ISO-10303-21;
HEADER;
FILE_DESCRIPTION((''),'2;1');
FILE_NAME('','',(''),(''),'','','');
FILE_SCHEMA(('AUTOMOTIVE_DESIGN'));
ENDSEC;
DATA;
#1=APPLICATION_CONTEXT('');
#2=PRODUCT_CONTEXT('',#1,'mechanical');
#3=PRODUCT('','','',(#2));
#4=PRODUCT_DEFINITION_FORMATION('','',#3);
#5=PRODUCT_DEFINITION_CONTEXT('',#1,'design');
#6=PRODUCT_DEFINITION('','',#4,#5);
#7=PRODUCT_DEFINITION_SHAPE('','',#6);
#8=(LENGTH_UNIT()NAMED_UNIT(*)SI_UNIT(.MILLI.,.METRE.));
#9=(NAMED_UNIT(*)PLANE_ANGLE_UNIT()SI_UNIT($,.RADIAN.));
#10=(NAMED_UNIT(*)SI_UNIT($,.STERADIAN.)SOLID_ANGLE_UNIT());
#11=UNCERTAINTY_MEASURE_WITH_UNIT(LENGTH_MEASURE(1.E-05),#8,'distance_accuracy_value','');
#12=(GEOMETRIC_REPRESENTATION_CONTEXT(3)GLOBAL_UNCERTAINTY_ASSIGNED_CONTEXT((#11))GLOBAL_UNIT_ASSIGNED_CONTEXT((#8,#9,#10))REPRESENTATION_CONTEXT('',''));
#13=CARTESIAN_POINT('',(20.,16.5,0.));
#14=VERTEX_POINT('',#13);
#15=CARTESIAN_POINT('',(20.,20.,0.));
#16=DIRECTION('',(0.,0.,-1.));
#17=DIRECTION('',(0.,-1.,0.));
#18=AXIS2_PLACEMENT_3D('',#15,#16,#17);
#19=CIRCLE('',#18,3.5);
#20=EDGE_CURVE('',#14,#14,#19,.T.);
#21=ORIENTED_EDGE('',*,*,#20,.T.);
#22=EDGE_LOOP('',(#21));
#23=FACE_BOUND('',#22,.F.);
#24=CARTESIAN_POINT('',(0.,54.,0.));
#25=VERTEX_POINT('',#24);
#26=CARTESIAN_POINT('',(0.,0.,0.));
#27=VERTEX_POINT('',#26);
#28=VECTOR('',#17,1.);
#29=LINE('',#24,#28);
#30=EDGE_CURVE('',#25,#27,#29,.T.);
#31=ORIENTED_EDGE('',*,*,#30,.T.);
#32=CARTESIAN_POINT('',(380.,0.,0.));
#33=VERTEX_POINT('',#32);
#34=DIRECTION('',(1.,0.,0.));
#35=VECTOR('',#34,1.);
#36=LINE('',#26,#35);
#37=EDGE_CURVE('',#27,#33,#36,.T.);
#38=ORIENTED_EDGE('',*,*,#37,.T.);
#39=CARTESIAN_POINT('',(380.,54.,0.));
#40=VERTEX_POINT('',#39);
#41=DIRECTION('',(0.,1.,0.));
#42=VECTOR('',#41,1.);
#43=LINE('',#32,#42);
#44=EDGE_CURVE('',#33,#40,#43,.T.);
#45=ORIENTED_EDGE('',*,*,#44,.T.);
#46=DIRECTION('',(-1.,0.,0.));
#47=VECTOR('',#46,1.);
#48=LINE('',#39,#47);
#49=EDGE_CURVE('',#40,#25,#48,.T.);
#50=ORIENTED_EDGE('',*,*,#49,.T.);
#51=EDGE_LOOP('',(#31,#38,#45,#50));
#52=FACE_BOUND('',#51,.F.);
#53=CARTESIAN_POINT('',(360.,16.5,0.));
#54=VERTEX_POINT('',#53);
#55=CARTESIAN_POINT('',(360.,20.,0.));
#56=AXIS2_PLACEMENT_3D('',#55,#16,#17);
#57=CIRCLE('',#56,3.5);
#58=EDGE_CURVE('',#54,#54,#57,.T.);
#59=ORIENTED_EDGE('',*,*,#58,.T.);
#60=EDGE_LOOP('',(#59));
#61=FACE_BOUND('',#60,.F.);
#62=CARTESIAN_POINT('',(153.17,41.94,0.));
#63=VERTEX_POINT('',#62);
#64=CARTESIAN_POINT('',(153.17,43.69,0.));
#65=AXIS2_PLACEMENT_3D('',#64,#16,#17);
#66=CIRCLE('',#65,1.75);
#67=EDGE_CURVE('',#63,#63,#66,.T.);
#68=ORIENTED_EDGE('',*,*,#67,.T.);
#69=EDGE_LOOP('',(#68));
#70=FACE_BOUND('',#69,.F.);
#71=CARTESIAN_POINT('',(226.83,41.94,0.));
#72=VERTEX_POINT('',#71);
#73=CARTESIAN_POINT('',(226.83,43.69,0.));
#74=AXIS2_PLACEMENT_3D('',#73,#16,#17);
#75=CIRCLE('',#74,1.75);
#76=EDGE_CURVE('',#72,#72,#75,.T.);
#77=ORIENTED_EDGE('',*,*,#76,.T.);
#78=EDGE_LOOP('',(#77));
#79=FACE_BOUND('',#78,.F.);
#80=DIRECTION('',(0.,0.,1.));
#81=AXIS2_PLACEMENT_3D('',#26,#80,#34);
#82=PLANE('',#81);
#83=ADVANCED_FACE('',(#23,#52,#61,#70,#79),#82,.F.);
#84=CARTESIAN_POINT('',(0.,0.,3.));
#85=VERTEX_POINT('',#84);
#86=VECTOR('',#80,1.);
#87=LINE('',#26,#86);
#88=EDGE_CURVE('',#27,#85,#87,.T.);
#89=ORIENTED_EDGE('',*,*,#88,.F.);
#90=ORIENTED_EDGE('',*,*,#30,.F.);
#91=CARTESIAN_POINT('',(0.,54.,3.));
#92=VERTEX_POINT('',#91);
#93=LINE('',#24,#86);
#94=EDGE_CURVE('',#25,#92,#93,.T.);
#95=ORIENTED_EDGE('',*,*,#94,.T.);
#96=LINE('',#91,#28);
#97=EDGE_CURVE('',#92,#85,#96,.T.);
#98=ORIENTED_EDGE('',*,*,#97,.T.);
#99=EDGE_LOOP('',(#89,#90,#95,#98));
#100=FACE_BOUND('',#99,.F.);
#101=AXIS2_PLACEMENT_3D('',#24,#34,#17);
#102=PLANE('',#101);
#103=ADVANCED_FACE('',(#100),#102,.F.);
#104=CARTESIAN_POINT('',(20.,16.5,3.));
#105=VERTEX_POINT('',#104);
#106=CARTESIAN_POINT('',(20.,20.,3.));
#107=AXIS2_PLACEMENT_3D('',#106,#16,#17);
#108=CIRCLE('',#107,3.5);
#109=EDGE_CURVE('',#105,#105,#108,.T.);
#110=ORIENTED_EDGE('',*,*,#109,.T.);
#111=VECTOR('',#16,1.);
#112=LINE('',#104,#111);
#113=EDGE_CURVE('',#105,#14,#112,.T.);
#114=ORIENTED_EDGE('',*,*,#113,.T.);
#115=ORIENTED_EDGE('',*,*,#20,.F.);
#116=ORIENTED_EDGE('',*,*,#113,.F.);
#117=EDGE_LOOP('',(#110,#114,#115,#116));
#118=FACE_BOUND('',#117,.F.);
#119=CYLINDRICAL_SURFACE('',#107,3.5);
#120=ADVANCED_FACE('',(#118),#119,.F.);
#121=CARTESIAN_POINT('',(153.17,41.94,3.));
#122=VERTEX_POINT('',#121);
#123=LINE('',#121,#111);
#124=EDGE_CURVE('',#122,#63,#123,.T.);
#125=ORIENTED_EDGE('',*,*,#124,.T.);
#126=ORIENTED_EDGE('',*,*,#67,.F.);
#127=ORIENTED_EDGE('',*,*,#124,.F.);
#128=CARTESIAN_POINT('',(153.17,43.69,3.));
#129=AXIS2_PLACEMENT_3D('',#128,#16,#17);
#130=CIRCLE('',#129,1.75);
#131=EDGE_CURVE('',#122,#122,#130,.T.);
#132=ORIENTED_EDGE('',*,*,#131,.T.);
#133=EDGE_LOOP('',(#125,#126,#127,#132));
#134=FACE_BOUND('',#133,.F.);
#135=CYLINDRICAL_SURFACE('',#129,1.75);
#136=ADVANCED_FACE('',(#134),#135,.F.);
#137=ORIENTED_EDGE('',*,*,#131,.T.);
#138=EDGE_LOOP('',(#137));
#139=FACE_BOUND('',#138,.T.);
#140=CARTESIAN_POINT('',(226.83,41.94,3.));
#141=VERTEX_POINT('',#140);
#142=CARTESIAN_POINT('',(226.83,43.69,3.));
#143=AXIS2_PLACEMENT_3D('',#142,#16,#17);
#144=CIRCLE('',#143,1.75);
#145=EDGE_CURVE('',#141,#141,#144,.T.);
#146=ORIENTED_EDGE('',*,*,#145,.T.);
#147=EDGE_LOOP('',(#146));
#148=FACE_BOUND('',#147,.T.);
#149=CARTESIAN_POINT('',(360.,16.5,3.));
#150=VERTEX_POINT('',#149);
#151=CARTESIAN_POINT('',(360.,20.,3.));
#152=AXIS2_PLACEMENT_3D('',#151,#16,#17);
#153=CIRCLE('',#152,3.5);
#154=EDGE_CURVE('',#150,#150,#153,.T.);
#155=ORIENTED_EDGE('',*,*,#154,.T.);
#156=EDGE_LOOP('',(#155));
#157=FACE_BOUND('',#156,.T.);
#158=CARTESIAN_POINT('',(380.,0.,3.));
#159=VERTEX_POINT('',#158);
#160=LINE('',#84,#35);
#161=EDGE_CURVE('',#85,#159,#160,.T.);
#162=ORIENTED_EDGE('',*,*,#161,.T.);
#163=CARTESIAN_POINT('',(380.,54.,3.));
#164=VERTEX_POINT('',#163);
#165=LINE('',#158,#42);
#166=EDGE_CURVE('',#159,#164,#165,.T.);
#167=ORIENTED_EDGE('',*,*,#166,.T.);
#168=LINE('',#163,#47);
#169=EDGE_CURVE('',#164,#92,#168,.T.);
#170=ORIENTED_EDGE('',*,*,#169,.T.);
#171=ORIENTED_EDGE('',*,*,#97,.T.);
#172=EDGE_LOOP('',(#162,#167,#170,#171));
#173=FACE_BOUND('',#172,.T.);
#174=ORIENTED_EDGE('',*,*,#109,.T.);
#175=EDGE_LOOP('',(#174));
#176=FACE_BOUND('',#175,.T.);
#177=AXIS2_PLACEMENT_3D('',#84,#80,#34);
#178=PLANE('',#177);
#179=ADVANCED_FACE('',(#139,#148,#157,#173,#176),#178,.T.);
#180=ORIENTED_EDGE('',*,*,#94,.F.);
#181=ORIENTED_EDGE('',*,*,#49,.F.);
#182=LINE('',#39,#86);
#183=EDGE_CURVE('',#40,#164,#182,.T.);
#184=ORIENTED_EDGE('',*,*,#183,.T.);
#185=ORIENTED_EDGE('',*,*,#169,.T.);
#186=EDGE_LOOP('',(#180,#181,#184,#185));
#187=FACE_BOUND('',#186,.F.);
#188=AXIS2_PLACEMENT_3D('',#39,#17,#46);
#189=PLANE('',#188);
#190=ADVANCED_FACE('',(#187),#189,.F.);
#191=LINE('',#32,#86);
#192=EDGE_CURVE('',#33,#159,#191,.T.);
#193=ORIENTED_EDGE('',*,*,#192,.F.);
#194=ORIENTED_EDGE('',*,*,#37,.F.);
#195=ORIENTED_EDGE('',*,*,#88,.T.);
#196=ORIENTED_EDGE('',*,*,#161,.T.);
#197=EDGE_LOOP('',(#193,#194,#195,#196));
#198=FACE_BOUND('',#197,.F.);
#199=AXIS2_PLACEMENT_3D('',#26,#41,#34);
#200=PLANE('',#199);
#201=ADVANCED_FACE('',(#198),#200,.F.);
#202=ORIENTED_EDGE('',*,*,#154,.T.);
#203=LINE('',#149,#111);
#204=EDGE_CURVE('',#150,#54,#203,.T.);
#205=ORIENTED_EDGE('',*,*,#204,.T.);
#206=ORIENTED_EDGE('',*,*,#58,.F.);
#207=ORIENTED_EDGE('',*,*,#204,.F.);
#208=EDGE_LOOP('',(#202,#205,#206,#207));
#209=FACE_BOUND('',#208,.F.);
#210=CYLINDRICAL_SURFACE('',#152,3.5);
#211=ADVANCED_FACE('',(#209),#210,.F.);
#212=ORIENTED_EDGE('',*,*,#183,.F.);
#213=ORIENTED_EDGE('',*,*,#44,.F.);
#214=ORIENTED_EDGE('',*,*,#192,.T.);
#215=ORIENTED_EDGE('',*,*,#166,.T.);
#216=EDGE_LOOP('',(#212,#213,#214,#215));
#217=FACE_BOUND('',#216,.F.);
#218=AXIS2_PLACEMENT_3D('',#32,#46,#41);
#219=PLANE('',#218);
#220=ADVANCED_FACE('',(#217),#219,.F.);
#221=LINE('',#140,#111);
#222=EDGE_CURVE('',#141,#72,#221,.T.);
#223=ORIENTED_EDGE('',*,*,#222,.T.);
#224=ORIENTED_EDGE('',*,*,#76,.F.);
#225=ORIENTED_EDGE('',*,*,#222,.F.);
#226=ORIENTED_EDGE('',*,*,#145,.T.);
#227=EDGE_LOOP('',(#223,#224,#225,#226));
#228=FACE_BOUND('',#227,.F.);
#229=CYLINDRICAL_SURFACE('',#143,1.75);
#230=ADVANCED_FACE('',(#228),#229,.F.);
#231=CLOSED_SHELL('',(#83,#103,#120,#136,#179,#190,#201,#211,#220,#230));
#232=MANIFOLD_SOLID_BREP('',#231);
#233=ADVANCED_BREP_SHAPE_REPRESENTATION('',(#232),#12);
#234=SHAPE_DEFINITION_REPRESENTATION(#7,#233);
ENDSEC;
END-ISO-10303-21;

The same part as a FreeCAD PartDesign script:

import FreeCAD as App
import Part
import Sketcher

V = App.Vector

doc = App.newDocument("Part")
body = doc.addObject("PartDesign::Body", "Body")

# Sketch on XY plane
sketch1 = body.newObject("Sketcher::SketchObject", "Sketch")
sketch1.AttachmentSupport = (doc.getObject("XY_Plane"), [""])
sketch1.MapMode = "FlatFace"
sketch1.addGeometry([
    Part.LineSegment(V(0, 54, 0), V(0, 0, 0)),
    Part.LineSegment(V(0, 0, 0), V(380, 0, 0)),
    Part.LineSegment(V(380, 0, 0), V(380, 54, 0)),
    Part.LineSegment(V(380, 54, 0), V(0, 54, 0)),
], False)
sketch1.addConstraint([
    Sketcher.Constraint("Coincident", 0, 2, 1, 1),
    Sketcher.Constraint("Coincident", 1, 2, 2, 1),
    Sketcher.Constraint("Coincident", 2, 2, 3, 1),
    Sketcher.Constraint("Coincident", 3, 2, 0, 1),
    Sketcher.Constraint("Vertical", 0),
    Sketcher.Constraint("Horizontal", 1),
    Sketcher.Constraint("Vertical", 2),
    Sketcher.Constraint("Horizontal", 3),
    Sketcher.Constraint("Coincident", 0, 2, -1, 1),
    Sketcher.Constraint("DistanceX", 1, 1, 1, 2, 380.0),
    Sketcher.Constraint("DistanceY", 0, 2, 0, 1, 54.0),
])
pad1 = body.newObject("PartDesign::Pad", "Pad")
pad1.Profile = sketch1
pad1.Length = 3

# Sketch on XY plane
sketch2 = body.newObject("Sketcher::SketchObject", "Sketch001")
sketch2.AttachmentSupport = (doc.getObject("XY_Plane"), [""])
sketch2.MapMode = "FlatFace"
sketch2.AttachmentOffset = App.Placement(V(0, 0, 3), App.Rotation())
sketch2.addGeometry([
    Part.Circle(V(20, 20, 0), V(0, 0, 1), 3.5),
    Part.Circle(V(360, 20, 0), V(0, 0, 1), 3.5),
], False)
sketch2.addConstraint([
    Sketcher.Constraint("Equal", 0, 1),
    Sketcher.Constraint("Horizontal", 0, 3, 1, 3),
    Sketcher.Constraint("Diameter", 0, 7.0),
    Sketcher.Constraint("DistanceX", -1, 1, 0, 3, 20.0),
    Sketcher.Constraint("DistanceY", -1, 1, 0, 3, 20.0),
    Sketcher.Constraint("DistanceX", -1, 1, 1, 3, 360.0),
])
doc.recompute()
hole = body.newObject("PartDesign::Hole", "Hole")
hole.Profile = sketch2
hole.ThreadType = "None"
hole.Diameter = 7
hole.DepthType = "ThroughAll"

# Sketch on XY plane
sketch3 = body.newObject("Sketcher::SketchObject", "Sketch002")
sketch3.AttachmentSupport = (doc.getObject("XY_Plane"), [""])
sketch3.MapMode = "FlatFace"
sketch3.AttachmentOffset = App.Placement(V(0, 0, 3), App.Rotation())
sketch3.addGeometry([
    Part.Circle(V(153.2, 43.7, 0), V(0, 0, 1), 1.8),
    Part.Circle(V(226.8, 43.7, 0), V(0, 0, 1), 1.8),
], False)
sketch3.addConstraint([
    Sketcher.Constraint("Equal", 0, 1),
    Sketcher.Constraint("Horizontal", 0, 3, 1, 3),
    Sketcher.Constraint("Diameter", 0, 3.5),
    Sketcher.Constraint("DistanceX", -1, 1, 0, 3, 153.17),
    Sketcher.Constraint("DistanceY", -1, 1, 0, 3, 43.69),
    Sketcher.Constraint("DistanceX", -1, 1, 1, 3, 226.83),
])
doc.recompute()
hole2 = body.newObject("PartDesign::Hole", "Hole001")
hole2.Profile = sketch3
hole2.ThreadType = "None"
hole2.Diameter = 3.5
hole2.DepthType = "ThroughAll"

doc.recompute()
